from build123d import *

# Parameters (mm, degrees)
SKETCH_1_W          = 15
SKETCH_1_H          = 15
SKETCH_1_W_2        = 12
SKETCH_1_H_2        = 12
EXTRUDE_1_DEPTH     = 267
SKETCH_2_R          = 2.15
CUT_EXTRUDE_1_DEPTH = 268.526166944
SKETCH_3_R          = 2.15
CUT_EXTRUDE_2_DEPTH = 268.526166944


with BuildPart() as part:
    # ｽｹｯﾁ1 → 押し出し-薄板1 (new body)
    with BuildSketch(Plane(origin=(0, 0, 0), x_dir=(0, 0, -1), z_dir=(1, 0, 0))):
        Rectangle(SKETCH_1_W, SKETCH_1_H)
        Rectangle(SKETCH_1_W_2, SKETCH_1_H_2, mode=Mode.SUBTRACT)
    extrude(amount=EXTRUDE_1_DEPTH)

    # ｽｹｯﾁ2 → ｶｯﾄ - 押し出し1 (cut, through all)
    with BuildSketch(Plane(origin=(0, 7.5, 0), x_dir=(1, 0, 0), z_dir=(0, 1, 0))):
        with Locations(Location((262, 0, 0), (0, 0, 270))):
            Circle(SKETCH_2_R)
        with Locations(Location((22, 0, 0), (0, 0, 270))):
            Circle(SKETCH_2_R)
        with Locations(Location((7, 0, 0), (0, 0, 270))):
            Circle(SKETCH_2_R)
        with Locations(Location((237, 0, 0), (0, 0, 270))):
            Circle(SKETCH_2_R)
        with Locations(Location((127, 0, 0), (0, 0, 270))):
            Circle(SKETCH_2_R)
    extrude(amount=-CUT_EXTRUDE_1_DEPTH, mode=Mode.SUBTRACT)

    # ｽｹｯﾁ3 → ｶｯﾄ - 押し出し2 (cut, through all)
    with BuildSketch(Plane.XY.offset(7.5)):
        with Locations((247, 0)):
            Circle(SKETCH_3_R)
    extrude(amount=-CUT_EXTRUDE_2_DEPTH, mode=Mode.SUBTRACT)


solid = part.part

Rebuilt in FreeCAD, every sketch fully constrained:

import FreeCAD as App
import Part
import Sketcher
from FreeCAD import Vector
Q = App.Units.Quantity

doc = App.newDocument("Part")
body = doc.addObject("PartDesign::Body", "Body")

# Sketch on YZ plane
sketch1 = body.newObject("Sketcher::SketchObject", "Sketch")
sketch1.AttachmentSupport = (doc.getObject("YZ_Plane"), [""])
sketch1.MapMode = "FlatFace"
sketch1.addGeometry([
    Part.LineSegment(Vector(7.5, 7.5, 0), Vector(-7.5, 7.5, 0)),  # 0
    Part.LineSegment(Vector(-7.5, 7.5, 0), Vector(-7.5, -7.5, 0)),  # 1
    Part.LineSegment(Vector(-7.5, -7.5, 0), Vector(7.5, -7.5, 0)),  # 2
    Part.LineSegment(Vector(7.5, -7.5, 0), Vector(7.5, 7.5, 0)),  # 3
    Part.LineSegment(Vector(-6, -6, 0), Vector(-6, 6, 0)),  # 4
    Part.LineSegment(Vector(-6, 6, 0), Vector(6, 6, 0)),  # 5
    Part.LineSegment(Vector(6, 6, 0), Vector(6, -6, 0)),  # 6
    Part.LineSegment(Vector(6, -6, 0), Vector(-6, -6, 0)),  # 7
], False)
sketch1.addConstraint([
    Sketcher.Constraint("Coincident", 0, 2, 1, 1),
    Sketcher.Constraint("Coincident", 1, 2, 2, 1),
    Sketcher.Constraint("Coincident", 2, 2, 3, 1),
    Sketcher.Constraint("Coincident", 3, 2, 0, 1),
    Sketcher.Constraint("Coincident", 4, 2, 5, 1),
    Sketcher.Constraint("Coincident", 5, 2, 6, 1),
    Sketcher.Constraint("Coincident", 6, 2, 7, 1),
    Sketcher.Constraint("Coincident", 7, 2, 4, 1),
    Sketcher.Constraint("Horizontal", 0),
    Sketcher.Constraint("Vertical", 1),
    Sketcher.Constraint("Horizontal", 2),
    Sketcher.Constraint("Vertical", 3),
    Sketcher.Constraint("Vertical", 4),
    Sketcher.Constraint("Horizontal", 5),
    Sketcher.Constraint("Vertical", 6),
    Sketcher.Constraint("Horizontal", 7),
    Sketcher.Constraint("Symmetric", 0, 2, 2, 2, -1, 1),
    Sketcher.Constraint("Symmetric", 4, 2, 6, 2, -1, 1),
    Sketcher.Constraint("Equal", 2, 1),
    Sketcher.Constraint("Equal", 7, 4),
    Sketcher.Constraint("DistanceX", 0, 2, 0, 1, Q("15 mm")),
    Sketcher.Constraint("DistanceX", 5, 1, 5, 2, Q("12 mm")),
])
pad1 = body.newObject("PartDesign::Pad", "Pad")
pad1.Profile = sketch1
pad1.Length = 267

# Sketch on XZ plane
sketch2 = body.newObject("Sketcher::SketchObject", "Sketch001")
sketch2.AttachmentSupport = (doc.getObject("XZ_Plane"), [""])
sketch2.MapMode = "FlatFace"
sketch2.AttachmentOffset = App.Placement(Vector(0, 0, -7.5), App.Rotation())
sketch2.addGeometry([
    Part.Circle(Vector(262, 0, 0), Vector(0, 0, 1), 2.15),  # 0
    Part.Circle(Vector(22, 0, 0), Vector(0, 0, 1), 2.15),  # 1
    Part.Circle(Vector(7, 0, 0), Vector(0, 0, 1), 2.15),  # 2
    Part.Circle(Vector(237, 0, 0), Vector(0, 0, 1), 2.15),  # 3
    Part.Circle(Vector(127, 0, 0), Vector(0, 0, 1), 2.15),  # 4
], False)
sketch2.addConstraint([
    Sketcher.Constraint("Equal", 0, 1),
    Sketcher.Constraint("Equal", 1, 2),
    Sketcher.Constraint("Equal", 2, 3),
    Sketcher.Constraint("Equal", 3, 4),
    Sketcher.Constraint("PointOnObject", 0, 3, -1),
    Sketcher.Constraint("PointOnObject", 1, 3, -1),
    Sketcher.Constraint("PointOnObject", 2, 3, -1),
    Sketcher.Constraint("PointOnObject", 3, 3, -1),
    Sketcher.Constraint("PointOnObject", 4, 3, -1),
    Sketcher.Constraint("Diameter", 0, Q("4.3 mm")),
    Sketcher.Constraint("DistanceX", -1, 1, 0, 3, Q("262 mm")),
    Sketcher.Constraint("DistanceX", -1, 1, 1, 3, Q("22 mm")),
    Sketcher.Constraint("DistanceX", -1, 1, 2, 3, Q("7 mm")),
    Sketcher.Constraint("DistanceX", -1, 1, 3, 3, Q("237 mm")),
    Sketcher.Constraint("DistanceX", -1, 1, 4, 3, Q("127 mm")),
])
pocket1 = body.newObject("PartDesign::Pocket", "Pocket")
pocket1.Profile = sketch2
pocket1.Type = "ThroughAll"
pocket1.Reversed = True

# Sketch on XY plane
sketch3 = body.newObject("Sketcher::SketchObject", "Sketch002")
sketch3.AttachmentSupport = (doc.getObject("XY_Plane"), [""])
sketch3.MapMode = "FlatFace"
sketch3.AttachmentOffset = App.Placement(Vector(0, 0, 7.5), App.Rotation())
sketch3.addGeometry(Part.Circle(Vector(247, 0, 0), Vector(0, 0, 1), 2.15), False)
sketch3.addConstraint([
    Sketcher.Constraint("PointOnObject", 0, 3, -1),
    Sketcher.Constraint("Diameter", 0, Q("4.3 mm")),
    Sketcher.Constraint("DistanceX", -1, 1, 0, 3, Q("247 mm")),
])
pocket2 = body.newObject("PartDesign::Pocket", "Pocket001")
pocket2.Profile = sketch3
pocket2.Type = "ThroughAll"

doc.recompute()
